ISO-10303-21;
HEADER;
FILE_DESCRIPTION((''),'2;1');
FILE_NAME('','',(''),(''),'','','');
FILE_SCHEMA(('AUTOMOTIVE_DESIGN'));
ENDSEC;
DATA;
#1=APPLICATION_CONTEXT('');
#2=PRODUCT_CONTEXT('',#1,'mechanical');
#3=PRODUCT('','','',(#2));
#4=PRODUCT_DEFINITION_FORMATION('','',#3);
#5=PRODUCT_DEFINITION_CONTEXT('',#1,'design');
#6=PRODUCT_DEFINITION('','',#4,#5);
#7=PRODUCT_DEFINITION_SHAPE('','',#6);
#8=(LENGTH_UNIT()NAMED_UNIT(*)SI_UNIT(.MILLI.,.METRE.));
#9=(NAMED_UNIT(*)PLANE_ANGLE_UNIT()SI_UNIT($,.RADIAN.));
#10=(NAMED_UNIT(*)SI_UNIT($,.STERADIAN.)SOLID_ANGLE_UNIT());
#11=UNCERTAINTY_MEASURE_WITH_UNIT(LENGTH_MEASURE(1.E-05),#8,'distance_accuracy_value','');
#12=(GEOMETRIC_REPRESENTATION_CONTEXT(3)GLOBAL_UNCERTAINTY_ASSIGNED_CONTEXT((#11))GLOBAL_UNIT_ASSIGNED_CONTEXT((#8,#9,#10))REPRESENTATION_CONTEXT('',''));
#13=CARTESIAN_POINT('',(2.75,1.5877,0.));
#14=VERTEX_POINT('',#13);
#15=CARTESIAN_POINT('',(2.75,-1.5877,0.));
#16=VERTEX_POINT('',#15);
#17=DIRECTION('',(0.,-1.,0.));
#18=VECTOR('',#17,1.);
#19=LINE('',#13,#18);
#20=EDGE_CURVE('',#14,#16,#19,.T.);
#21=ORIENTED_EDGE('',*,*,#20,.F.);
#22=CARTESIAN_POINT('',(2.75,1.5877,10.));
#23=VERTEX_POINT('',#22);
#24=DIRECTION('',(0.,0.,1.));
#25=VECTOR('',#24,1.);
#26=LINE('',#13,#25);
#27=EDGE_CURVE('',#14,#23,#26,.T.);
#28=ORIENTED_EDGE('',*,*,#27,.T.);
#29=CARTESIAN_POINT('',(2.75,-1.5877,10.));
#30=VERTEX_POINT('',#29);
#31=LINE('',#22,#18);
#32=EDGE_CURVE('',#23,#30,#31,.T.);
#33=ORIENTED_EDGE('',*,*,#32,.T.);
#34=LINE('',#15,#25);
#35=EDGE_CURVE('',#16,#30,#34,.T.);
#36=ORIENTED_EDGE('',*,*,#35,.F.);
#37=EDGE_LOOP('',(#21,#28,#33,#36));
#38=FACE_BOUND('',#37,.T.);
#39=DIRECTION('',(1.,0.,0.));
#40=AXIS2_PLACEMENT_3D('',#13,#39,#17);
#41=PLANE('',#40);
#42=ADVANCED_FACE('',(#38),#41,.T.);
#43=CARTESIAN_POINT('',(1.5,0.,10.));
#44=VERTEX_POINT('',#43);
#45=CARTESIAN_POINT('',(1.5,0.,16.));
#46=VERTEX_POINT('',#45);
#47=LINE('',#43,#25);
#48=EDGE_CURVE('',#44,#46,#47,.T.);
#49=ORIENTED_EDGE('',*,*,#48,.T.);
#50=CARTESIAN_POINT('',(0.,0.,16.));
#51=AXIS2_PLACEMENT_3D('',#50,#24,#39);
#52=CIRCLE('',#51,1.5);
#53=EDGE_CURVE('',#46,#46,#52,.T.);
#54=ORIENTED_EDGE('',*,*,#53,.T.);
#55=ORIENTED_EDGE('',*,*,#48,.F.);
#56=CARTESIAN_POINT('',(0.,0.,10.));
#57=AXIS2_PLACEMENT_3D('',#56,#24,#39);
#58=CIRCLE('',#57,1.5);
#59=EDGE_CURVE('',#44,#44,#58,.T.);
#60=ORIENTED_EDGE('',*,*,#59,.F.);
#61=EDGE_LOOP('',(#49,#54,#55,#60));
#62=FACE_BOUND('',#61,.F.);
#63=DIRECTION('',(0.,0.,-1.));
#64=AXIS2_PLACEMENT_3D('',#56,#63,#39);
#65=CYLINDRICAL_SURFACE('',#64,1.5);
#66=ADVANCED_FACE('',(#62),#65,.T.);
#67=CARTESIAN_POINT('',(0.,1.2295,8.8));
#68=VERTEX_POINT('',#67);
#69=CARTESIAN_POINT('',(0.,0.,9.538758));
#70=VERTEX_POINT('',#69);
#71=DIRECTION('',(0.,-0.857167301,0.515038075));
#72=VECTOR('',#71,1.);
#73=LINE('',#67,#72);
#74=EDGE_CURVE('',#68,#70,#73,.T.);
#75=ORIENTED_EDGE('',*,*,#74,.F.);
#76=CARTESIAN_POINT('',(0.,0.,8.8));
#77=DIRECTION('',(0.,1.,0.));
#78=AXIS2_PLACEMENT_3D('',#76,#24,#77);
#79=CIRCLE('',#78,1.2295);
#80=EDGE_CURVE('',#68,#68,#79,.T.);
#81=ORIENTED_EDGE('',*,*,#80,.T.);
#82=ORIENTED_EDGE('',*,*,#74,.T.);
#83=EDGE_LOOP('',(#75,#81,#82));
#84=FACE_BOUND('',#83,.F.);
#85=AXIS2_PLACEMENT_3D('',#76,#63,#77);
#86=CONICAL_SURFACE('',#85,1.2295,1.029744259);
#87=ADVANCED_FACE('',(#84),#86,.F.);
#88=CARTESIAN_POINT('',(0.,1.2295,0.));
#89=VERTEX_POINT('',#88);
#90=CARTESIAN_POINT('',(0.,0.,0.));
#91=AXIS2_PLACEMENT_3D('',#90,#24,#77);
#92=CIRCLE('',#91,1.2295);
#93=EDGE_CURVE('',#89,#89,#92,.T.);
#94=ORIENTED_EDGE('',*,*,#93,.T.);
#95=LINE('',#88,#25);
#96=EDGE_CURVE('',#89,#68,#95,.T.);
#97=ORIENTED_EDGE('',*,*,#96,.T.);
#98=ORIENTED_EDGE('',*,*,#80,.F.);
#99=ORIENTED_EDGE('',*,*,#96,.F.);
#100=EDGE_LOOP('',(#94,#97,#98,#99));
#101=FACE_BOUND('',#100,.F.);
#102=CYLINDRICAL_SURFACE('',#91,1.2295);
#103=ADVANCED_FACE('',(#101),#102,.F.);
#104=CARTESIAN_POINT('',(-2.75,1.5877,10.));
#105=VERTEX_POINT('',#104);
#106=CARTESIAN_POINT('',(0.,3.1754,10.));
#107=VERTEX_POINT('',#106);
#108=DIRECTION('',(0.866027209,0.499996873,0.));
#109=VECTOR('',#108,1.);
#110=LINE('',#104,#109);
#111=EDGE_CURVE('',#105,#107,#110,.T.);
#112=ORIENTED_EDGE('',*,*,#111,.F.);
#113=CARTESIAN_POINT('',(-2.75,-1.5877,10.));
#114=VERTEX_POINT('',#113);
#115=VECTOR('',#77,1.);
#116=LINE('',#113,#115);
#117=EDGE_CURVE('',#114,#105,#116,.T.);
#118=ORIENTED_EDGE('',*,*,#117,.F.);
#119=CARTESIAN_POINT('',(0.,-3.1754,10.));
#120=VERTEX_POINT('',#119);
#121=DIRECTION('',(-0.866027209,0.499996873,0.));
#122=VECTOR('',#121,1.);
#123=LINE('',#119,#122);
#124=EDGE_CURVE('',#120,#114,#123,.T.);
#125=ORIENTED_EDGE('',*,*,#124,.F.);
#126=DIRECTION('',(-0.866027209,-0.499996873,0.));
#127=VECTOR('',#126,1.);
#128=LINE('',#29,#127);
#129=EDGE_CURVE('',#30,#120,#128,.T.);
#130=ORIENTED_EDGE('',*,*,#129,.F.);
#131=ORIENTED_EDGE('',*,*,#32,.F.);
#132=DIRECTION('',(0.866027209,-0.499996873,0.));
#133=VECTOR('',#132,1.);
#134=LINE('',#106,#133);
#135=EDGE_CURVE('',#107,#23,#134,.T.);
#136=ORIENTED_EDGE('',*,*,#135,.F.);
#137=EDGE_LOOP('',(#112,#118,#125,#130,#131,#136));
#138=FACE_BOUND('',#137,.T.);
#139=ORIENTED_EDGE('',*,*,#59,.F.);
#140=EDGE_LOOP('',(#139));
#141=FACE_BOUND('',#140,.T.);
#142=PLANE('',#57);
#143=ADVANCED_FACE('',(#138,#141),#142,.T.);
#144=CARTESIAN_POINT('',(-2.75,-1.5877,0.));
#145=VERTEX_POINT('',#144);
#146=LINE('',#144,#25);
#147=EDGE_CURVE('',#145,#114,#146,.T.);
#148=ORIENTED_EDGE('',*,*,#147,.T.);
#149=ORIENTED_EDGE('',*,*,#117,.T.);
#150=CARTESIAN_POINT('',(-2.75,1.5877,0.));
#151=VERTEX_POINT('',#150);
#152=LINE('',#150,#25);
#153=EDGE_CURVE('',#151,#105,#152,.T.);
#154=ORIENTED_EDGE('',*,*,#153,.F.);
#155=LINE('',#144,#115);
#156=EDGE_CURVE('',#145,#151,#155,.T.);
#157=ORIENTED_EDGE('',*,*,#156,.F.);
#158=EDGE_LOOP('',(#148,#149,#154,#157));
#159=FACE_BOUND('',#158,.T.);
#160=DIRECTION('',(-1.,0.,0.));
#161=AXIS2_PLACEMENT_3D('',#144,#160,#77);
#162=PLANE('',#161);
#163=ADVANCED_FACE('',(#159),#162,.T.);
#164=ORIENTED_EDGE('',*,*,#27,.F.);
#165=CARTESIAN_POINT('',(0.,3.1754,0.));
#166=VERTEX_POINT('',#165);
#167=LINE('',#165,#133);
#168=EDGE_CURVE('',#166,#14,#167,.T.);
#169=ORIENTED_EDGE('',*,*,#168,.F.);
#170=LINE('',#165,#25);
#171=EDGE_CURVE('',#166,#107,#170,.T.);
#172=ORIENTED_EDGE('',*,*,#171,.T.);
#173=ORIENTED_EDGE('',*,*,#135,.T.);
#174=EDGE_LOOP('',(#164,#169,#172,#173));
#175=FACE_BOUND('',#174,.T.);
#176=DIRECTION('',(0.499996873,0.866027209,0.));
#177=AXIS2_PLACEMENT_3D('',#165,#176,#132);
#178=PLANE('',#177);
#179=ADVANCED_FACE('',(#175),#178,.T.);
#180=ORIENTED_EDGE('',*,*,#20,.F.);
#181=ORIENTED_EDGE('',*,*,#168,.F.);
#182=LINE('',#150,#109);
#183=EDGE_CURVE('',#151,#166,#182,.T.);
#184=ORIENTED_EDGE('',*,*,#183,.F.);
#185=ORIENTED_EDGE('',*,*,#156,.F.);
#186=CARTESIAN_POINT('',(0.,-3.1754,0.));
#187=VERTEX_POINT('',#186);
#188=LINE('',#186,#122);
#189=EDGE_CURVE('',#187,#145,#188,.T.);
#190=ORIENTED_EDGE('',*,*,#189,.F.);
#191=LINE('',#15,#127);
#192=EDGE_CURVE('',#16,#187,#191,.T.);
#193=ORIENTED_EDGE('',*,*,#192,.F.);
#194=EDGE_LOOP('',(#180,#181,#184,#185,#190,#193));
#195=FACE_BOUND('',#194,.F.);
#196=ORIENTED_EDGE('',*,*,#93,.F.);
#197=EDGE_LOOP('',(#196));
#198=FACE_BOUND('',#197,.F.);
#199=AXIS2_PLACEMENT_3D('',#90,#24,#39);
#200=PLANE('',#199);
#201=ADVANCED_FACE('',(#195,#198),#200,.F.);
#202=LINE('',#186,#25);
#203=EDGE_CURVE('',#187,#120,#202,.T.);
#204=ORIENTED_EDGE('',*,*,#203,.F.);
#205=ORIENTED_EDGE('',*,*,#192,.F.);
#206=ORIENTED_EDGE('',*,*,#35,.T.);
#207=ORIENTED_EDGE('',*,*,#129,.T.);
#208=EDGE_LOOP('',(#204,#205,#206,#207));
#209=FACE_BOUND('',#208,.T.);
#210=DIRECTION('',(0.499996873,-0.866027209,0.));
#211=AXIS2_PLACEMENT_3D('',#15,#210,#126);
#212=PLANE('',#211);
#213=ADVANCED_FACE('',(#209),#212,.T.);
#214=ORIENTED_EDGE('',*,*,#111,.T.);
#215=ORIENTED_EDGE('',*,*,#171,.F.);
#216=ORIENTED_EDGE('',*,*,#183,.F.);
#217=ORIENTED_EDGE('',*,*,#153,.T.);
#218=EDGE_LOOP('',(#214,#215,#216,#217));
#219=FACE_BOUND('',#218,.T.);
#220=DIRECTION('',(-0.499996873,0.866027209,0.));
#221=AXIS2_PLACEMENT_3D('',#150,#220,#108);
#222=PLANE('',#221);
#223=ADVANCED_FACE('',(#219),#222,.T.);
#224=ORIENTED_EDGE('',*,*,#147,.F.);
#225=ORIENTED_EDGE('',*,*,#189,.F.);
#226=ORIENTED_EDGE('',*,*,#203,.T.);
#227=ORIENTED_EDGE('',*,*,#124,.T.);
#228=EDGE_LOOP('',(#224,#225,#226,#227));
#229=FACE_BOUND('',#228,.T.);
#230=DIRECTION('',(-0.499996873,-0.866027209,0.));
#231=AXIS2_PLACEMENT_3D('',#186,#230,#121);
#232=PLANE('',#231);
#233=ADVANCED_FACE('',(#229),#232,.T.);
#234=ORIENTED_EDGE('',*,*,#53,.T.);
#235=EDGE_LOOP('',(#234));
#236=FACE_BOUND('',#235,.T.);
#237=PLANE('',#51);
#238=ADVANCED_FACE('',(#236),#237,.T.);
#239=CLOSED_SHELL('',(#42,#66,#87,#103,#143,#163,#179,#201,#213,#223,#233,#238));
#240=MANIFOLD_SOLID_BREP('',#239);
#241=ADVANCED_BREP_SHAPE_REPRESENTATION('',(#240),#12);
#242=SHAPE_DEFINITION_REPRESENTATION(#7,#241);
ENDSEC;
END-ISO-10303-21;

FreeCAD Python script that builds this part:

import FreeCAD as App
import Part
import Sketcher
from FreeCAD import Vector
Q = App.Units.Quantity


def add_polygon(sketch, points):
    """Adds a closed chain of lines whose ends are joined by coincident constraints."""
    first, n = sketch.GeometryCount, len(points)
    for a, b in zip(points, points[1:] + points[:1]):
        sketch.addGeometry(Part.LineSegment(App.Vector(*a, 0), App.Vector(*b, 0)), False)
    for i in range(n):
        sketch.addConstraint(Sketcher.Constraint("Coincident", first + i, 2, first + (i + 1) % n, 1))

doc = App.newDocument("Part")
body = doc.addObject("PartDesign::Body", "Body")

# Sketch on XY plane
sketch1 = body.newObject("Sketcher::SketchObject", "Sketch")
sketch1.AttachmentSupport = (doc.getObject("XY_Plane"), [""])
sketch1.MapMode = "FlatFace"
add_polygon(sketch1, [(2.8, 1.6), (0, 3.2), (-2.8, 1.6), (-2.8, -1.6), (0, -3.2), (2.8, -1.6)])  # lines 0-5
sketch1.addConstraint(Sketcher.Constraint("Vertical", 2))
sketch1.addConstraint(Sketcher.Constraint("Vertical", 5))
sketch1.addConstraint(Sketcher.Constraint("Symmetric", 0, 2, 3, 2, -1, 1))
sketch1.addConstraint(Sketcher.Constraint("Symmetric", 1, 2, 4, 2, -1, 1))
sketch1.addConstraint(Sketcher.Constraint("PointOnObject", 0, 2, -2))
sketch1.addConstraint(Sketcher.Constraint("Parallel", 0, 3))
sketch1.addConstraint(Sketcher.Constraint("Horizontal", 2, 2, 4, 2))
sketch1.addConstraint(Sketcher.Constraint("DistanceX", 2, 2, 4, 2, Q("5.5 mm")))
sketch1.addConstraint(Sketcher.Constraint("Angle", 0, Q("150.0002 deg")))
sketch1.addConstraint(Sketcher.Constraint("DistanceY", 2, 2, 2, 1, Q("3.1754 mm")))
pad1 = body.newObject("PartDesign::Pad", "Pad")
pad1.Profile = sketch1
pad1.Length = 10

# Sketch on XY plane
sketch2 = body.newObject("Sketcher::SketchObject", "Sketch001")
sketch2.AttachmentSupport = (doc.getObject("XY_Plane"), [""])
sketch2.MapMode = "FlatFace"
sketch2.AttachmentOffset = App.Placement(Vector(0, 0, 10), App.Rotation())
sketch2.addGeometry(Part.Circle(Vector(0, 0, 0), Vector(0, 0, 1), 1.5), False)
sketch2.addConstraint(Sketcher.Constraint("Coincident", 0, 3, -1, 1))
sketch2.addConstraint(Sketcher.Constraint("Diameter", 0, Q("3 mm")))
pad2 = body.newObject("PartDesign::Pad", "Pad001")
pad2.Profile = sketch2
pad2.Length = 6

# Sketch on XY plane
sketch3 = body.newObject("Sketcher::SketchObject", "Sketch002")
sketch3.AttachmentSupport = (doc.getObject("XY_Plane"), [""])
sketch3.MapMode = "FlatFace"
sketch3.addGeometry(Part.Circle(Vector(0, 0, 0), Vector(0, 0, 1), 1.2), False)
sketch3.addConstraint(Sketcher.Constraint("Coincident", 0, 3, -1, 1))
sketch3.addConstraint(Sketcher.Constraint("Diameter", 0, Q("2.459 mm")))
doc.recompute()
hole = body.newObject("PartDesign::Hole", "Hole")
hole.Profile = sketch3
hole.ThreadType = "None"
hole.Diameter = 2.459
hole.DepthType = "Dimension"
hole.Depth = 8.8
hole.DrillPoint = "Angled"
hole.DrillPointAngle = 118
hole.Reversed = True

doc.recompute()
